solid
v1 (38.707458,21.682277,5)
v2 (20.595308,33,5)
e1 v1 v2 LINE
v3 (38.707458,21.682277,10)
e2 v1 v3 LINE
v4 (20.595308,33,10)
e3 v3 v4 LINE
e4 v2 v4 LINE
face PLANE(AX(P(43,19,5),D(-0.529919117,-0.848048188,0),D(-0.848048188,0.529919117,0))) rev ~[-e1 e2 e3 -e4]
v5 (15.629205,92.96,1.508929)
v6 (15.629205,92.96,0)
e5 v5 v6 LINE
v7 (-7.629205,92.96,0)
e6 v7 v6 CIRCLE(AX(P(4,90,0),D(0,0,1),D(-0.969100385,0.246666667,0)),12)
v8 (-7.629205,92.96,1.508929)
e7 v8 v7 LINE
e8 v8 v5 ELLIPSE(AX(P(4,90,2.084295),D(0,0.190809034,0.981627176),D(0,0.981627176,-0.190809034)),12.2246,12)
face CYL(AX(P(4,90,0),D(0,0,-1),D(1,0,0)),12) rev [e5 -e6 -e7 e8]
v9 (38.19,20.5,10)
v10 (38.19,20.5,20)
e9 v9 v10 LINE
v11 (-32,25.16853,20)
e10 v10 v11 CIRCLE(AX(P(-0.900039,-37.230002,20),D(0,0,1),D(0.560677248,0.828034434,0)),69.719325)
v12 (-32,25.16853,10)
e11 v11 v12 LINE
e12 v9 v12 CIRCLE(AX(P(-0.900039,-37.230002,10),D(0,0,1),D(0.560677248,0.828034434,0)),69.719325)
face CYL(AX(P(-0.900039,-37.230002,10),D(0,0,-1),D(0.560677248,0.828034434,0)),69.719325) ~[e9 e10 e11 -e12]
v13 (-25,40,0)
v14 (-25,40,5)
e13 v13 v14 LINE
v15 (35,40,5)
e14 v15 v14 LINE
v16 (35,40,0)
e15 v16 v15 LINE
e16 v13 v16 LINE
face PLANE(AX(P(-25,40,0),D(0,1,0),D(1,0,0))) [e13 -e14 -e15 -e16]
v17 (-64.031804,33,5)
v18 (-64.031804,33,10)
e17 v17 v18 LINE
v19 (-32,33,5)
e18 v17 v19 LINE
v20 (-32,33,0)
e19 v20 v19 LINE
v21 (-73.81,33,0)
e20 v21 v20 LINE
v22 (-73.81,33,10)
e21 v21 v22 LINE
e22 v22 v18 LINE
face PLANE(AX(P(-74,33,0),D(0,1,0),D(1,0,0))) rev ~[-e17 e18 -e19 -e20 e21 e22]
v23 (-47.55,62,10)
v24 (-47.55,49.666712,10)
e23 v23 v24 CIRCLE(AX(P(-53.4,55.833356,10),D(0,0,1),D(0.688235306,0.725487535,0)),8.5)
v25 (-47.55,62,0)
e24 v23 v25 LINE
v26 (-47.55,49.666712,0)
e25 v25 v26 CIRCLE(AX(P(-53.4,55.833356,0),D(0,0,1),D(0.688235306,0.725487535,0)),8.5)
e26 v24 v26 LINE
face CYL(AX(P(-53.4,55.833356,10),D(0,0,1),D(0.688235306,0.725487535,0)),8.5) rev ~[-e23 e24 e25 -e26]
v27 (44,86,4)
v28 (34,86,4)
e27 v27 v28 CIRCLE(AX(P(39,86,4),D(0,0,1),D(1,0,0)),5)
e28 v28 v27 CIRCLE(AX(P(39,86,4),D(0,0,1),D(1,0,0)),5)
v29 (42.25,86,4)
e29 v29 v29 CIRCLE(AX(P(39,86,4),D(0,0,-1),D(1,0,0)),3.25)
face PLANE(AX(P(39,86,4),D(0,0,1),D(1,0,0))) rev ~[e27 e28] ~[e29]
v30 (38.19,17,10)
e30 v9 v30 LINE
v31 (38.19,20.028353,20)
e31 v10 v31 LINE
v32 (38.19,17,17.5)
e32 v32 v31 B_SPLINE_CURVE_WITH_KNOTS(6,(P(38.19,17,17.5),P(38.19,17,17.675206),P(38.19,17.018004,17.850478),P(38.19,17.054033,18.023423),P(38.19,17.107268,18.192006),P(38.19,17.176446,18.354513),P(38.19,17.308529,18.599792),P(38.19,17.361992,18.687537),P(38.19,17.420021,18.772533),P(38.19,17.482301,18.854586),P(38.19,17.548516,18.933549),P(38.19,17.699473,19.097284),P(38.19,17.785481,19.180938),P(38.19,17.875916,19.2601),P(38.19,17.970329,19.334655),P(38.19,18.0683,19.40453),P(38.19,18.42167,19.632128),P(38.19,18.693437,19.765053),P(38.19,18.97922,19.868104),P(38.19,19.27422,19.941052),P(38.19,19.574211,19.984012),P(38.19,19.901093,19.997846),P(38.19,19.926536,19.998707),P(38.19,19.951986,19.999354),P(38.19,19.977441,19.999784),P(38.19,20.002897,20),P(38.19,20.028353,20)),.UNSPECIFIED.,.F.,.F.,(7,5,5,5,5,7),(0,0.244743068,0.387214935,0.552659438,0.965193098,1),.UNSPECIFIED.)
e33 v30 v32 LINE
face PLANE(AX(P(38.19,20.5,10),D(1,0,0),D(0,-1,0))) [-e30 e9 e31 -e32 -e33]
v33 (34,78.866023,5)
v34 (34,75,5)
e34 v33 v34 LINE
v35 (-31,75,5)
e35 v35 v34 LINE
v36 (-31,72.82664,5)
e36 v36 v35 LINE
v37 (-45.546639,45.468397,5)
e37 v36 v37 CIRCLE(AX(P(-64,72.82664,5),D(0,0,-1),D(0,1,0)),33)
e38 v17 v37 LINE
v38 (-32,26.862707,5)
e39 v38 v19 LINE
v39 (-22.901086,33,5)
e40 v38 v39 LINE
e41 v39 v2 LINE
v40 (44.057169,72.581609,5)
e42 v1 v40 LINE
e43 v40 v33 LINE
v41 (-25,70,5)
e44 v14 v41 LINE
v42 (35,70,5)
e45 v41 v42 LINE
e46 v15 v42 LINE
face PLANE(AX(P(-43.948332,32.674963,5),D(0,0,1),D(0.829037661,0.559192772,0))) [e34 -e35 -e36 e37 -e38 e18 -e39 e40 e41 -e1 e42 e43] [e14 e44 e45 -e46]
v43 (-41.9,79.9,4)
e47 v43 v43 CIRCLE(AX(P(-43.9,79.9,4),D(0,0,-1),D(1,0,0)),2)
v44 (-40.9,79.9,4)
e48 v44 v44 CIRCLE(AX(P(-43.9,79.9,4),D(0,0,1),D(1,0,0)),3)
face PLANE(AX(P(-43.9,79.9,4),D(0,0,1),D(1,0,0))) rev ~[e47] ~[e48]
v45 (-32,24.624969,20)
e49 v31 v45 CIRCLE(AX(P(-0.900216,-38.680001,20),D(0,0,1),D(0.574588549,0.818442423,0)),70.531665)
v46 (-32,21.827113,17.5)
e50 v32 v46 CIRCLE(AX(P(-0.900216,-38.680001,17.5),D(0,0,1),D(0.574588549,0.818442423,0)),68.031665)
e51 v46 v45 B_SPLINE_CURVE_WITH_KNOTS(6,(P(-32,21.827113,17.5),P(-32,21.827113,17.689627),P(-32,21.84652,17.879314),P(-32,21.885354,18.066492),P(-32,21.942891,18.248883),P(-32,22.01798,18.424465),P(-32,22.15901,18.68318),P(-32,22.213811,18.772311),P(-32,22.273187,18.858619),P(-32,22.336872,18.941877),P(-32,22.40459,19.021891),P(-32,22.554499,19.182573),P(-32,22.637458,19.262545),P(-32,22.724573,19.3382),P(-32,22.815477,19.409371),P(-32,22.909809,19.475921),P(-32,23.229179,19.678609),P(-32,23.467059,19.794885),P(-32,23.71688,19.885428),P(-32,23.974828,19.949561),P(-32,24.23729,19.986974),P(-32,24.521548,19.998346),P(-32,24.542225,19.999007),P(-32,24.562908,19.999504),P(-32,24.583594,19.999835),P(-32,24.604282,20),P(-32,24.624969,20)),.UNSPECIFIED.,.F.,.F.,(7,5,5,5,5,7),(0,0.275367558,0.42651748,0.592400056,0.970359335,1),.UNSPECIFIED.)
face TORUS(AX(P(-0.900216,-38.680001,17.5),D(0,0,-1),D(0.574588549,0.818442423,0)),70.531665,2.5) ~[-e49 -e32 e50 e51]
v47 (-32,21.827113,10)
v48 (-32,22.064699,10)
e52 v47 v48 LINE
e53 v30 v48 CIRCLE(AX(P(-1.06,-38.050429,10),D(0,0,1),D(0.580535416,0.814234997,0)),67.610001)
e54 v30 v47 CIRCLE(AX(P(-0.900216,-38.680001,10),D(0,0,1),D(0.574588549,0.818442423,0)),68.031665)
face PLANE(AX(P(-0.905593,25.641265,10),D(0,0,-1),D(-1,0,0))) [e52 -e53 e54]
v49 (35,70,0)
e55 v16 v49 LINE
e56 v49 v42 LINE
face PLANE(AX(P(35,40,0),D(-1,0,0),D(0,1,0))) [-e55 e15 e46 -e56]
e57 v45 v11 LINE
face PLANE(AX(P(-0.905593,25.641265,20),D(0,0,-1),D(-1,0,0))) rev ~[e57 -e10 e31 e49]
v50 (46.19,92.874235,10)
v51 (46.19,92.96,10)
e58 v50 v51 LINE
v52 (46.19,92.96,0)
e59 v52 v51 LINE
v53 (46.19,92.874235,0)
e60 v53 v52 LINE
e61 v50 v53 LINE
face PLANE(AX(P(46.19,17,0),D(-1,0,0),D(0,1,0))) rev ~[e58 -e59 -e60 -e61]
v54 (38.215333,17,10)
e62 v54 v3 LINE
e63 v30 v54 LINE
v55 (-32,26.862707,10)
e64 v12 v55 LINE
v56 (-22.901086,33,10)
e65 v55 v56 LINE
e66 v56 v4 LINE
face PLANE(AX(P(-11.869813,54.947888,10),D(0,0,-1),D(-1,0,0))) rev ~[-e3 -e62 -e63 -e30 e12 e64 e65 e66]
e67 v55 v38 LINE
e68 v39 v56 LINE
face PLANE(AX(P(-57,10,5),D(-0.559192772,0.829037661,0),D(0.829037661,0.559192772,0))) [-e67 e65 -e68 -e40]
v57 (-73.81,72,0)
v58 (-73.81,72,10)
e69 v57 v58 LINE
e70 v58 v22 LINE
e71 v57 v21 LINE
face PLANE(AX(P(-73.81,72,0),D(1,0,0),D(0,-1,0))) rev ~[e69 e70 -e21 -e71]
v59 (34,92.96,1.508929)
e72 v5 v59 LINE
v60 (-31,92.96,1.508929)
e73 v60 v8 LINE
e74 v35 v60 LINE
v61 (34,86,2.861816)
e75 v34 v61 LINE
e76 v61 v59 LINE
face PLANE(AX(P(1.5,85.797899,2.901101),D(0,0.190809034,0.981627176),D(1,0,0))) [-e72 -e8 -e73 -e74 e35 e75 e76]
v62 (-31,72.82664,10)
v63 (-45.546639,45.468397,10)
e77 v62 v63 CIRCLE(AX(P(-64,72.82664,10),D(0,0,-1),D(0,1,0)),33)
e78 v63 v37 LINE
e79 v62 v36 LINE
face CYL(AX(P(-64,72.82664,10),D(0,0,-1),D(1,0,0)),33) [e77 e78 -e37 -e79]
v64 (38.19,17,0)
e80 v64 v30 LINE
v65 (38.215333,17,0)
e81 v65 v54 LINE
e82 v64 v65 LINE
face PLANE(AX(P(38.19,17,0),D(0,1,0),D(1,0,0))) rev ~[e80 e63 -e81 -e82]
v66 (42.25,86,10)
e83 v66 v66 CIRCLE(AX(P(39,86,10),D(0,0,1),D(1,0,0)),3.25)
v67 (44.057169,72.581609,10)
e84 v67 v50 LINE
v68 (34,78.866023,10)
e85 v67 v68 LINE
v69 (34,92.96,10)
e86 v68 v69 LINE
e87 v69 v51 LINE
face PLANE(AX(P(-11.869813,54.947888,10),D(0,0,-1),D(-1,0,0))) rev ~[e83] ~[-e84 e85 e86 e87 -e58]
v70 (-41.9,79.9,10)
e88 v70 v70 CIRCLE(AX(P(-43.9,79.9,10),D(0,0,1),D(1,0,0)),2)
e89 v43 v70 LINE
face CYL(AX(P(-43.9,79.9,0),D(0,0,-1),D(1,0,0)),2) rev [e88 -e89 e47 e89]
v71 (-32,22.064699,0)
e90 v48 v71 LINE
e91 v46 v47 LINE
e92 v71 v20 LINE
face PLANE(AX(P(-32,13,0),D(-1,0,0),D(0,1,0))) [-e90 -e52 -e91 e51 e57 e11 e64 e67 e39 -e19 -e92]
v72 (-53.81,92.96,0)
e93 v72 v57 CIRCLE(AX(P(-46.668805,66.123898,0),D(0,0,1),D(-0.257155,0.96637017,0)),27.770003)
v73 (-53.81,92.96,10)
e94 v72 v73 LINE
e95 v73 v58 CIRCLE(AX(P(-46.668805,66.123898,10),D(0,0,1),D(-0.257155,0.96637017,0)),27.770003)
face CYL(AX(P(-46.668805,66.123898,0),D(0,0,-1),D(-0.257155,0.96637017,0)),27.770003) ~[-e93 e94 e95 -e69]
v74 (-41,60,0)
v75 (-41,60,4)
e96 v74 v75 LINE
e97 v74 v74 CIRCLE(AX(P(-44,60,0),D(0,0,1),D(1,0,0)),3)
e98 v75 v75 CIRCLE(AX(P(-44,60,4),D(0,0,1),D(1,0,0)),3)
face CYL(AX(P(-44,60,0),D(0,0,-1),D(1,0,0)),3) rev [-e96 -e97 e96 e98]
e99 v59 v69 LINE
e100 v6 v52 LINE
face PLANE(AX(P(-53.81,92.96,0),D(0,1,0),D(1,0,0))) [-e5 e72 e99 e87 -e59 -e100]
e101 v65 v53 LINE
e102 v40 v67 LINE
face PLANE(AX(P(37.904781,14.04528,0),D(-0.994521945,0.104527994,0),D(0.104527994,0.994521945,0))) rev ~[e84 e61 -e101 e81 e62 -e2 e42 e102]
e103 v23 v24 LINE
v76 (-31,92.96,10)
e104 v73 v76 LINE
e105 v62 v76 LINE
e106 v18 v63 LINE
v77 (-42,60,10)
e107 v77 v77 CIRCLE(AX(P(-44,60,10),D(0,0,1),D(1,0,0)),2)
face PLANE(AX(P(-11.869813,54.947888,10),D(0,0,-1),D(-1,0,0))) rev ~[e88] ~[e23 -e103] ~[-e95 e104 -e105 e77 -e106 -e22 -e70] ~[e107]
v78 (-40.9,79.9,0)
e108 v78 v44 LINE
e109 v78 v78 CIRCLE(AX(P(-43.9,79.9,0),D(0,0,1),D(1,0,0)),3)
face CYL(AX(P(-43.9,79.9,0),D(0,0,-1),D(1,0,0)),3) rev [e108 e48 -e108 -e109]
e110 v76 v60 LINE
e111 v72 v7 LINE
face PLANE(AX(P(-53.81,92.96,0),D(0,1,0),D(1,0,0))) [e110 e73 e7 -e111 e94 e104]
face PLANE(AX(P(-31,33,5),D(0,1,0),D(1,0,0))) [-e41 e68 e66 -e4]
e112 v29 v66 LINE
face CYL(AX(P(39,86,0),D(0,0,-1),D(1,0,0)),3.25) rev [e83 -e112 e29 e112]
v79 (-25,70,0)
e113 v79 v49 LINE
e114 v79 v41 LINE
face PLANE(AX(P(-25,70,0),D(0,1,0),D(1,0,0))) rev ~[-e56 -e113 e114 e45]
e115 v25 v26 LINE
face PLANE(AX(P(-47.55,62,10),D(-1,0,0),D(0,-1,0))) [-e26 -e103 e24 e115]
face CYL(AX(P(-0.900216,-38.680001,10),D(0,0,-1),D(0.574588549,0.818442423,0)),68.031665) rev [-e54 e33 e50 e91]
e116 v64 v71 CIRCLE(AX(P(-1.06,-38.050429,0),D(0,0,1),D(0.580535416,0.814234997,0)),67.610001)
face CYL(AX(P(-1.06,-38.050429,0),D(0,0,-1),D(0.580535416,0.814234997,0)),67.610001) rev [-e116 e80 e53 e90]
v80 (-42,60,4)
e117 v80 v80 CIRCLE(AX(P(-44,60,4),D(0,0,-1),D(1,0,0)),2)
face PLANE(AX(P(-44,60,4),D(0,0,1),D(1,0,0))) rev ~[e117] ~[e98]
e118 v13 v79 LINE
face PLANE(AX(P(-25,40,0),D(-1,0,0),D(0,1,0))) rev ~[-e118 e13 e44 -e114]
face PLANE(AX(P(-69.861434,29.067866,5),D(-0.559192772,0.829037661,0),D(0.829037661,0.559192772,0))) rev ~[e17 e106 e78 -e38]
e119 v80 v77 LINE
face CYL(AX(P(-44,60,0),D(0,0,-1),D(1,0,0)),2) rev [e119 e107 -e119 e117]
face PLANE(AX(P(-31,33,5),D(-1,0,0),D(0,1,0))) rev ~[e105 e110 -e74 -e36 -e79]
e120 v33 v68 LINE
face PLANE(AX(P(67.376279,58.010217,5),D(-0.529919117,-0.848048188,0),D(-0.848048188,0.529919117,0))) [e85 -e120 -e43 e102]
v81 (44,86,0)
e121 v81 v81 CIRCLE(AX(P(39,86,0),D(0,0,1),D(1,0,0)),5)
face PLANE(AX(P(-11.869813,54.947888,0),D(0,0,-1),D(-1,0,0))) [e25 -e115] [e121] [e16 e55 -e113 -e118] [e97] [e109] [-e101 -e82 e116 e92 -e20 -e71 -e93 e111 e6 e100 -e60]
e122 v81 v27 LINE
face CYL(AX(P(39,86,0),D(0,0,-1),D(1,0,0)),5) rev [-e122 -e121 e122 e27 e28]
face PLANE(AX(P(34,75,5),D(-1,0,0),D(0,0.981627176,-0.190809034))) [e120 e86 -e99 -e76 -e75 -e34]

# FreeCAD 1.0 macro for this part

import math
import FreeCAD as App
import Part
import Sketcher
Q = App.Units.Quantity


def edges_at(feature, points):
    """Names of the edges that pass closest to the given points."""
    edges = feature.Shape.Edges
    near = lambda p: min(range(len(edges)), key=lambda i: edges[i].distToShape(Part.Vertex(*p))[0])
    return sorted({f"Edge{near(p) + 1}" for p in points})

doc = App.newDocument("Part")
body = doc.addObject("PartDesign::Body", "Body")

# Sketch on XY plane
sketch1 = body.newObject("Sketcher::SketchObject", "Sketch")
sketch1.AttachmentSupport = (doc.getObject("XY_Plane"), [""])
sketch1.MapMode = "FlatFace"
sketch1.addGeometry(Part.LineSegment(App.Vector(46, 93, 0), App.Vector(-54, 93, 0)), False)
sketch1.addGeometry(Part.ArcOfCircle(Part.Circle(App.Vector(-47, 66, 0), App.Vector(0, 0, 1), 28), math.radians(105), math.radians(168)), False)
sketch1.addGeometry(Part.LineSegment(App.Vector(-74, 72, 0), App.Vector(-74, 17, 0)), False)
sketch1.addGeometry(Part.LineSegment(App.Vector(-74, 17, 0), App.Vector(-40, 17, 0)), False)
sketch1.addGeometry(Part.ArcOfCircle(Part.Circle(App.Vector(-1, -38, 0), App.Vector(0, 0, 1), 68), math.radians(55), math.radians(125)), False)
sketch1.addGeometry(Part.LineSegment(App.Vector(38, 17, 0), App.Vector(46, 17, 0)), False)
sketch1.addGeometry(Part.LineSegment(App.Vector(46, 17, 0), App.Vector(46, 93, 0)), False)
sketch1.addConstraint(Sketcher.Constraint("Coincident", 0, 2, 1, 1))
sketch1.addConstraint(Sketcher.Constraint("Coincident", 1, 2, 2, 1))
sketch1.addConstraint(Sketcher.Constraint("Coincident", 2, 2, 3, 1))
sketch1.addConstraint(Sketcher.Constraint("Coincident", 3, 2, 4, 2))
sketch1.addConstraint(Sketcher.Constraint("Coincident", 4, 1, 5, 1))
sketch1.addConstraint(Sketcher.Constraint("Coincident", 5, 2, 6, 1))
sketch1.addConstraint(Sketcher.Constraint("Coincident", 6, 2, 0, 1))
sketch1.addConstraint(Sketcher.Constraint("Horizontal", 0))
sketch1.addConstraint(Sketcher.Constraint("Vertical", 2))
sketch1.addConstraint(Sketcher.Constraint("Horizontal", 3))
sketch1.addConstraint(Sketcher.Constraint("Horizontal", 5))
sketch1.addConstraint(Sketcher.Constraint("Vertical", 6))
sketch1.addConstraint(Sketcher.Constraint("Horizontal", 3, 2, 4, 1))
sketch1.addConstraint(Sketcher.Constraint("DistanceX", 0, 2, 0, 1, 100.0))
sketch1.addConstraint(Sketcher.Constraint("DistanceX", 5, 1, 5, 2, 8.0))
sketch1.addConstraint(Sketcher.Constraint("DistanceY", 2, 2, 2, 1, 55.0))
sketch1.addConstraint(Sketcher.Constraint("Radius", 4, 67.610001))
sketch1.addConstraint(Sketcher.Constraint("DistanceX", 3, 1, 3, 2, 33.5))
sketch1.addConstraint(Sketcher.Constraint("DistanceY", -1, 1, 1, 2, 72.0))
sketch1.addConstraint(Sketcher.Constraint("DistanceX", 1, 2, 0, 2, 20.0))
sketch1.addConstraint(Sketcher.Constraint("DistanceY", 6, 1, 6, 2, 75.96))
sketch1.addConstraint(Sketcher.Constraint("DistanceX", 4, 3, -1, 1, 1.06))
sketch1.addConstraint(Sketcher.Constraint("Radius", 1, 27.770003))
pad1 = body.newObject("PartDesign::Pad", "Pad")
pad1.Profile = sketch1
pad1.Length = 10

# Sketch on XY plane
sketch2 = body.newObject("Sketcher::SketchObject", "Sketch001")
sketch2.AttachmentSupport = (doc.getObject("XY_Plane"), [""])
sketch2.MapMode = "FlatFace"
sketch2.AttachmentOffset = App.Placement(App.Vector(0, 0, 10), App.Rotation())
sketch2.addGeometry(Part.ArcOfCircle(Part.Circle(App.Vector(-0.9, -38.7, 0), App.Vector(0, 0, 1), 68), math.radians(55), math.radians(125)), False)
sketch2.addGeometry(Part.LineSegment(App.Vector(38.2, 17, 0), App.Vector(38.2, 20.5, 0)), False)
sketch2.addGeometry(Part.ArcOfCircle(Part.Circle(App.Vector(-0.9, -37.2, 0), App.Vector(0, 0, 1), 69.7), math.radians(56), math.radians(124)), False)
sketch2.addGeometry(Part.LineSegment(App.Vector(-40, 20.5, 0), App.Vector(-40, 17, 0)), False)
sketch2.addConstraint(Sketcher.Constraint("Coincident", 0, 1, 1, 1))
sketch2.addConstraint(Sketcher.Constraint("Coincident", 1, 2, 2, 1))
sketch2.addConstraint(Sketcher.Constraint("Coincident", 2, 2, 3, 1))
sketch2.addConstraint(Sketcher.Constraint("Coincident", 3, 2, 0, 2))
sketch2.addConstraint(Sketcher.Constraint("Vertical", 1))
sketch2.addConstraint(Sketcher.Constraint("Vertical", 3))
sketch2.addConstraint(Sketcher.Constraint("Equal", 1, 3))
sketch2.addConstraint(Sketcher.Constraint("DistanceY", 1, 1, 1, 2, 3.5))
sketch2.addConstraint(Sketcher.Constraint("DistanceY", -1, 1, 0, 1, 17.0))
sketch2.addConstraint(Sketcher.Constraint("DistanceX", 2, 2, -1, 1, 40.0))
sketch2.addConstraint(Sketcher.Constraint("DistanceY", 0, 3, -1, 1, 38.680001))
sketch2.addConstraint(Sketcher.Constraint("DistanceX", -1, 1, 0, 1, 38.19))
sketch2.addConstraint(Sketcher.Constraint("DistanceY", 0, 3, 2, 3, 1.449999))
sketch2.addConstraint(Sketcher.Constraint("Radius", 0, 68.031665))
pad2 = body.newObject("PartDesign::Pad", "Pad001")
pad2.Profile = sketch2
pad2.Length = 10
doc.recompute()

fillet = body.newObject("PartDesign::Fillet", "Fillet")
fillet.Base = (pad2, edges_at(pad2, [(-0.906, 29.352, 20)]))
fillet.Radius = 2.5

# Sketch on XY plane
sketch3 = body.newObject("Sketcher::SketchObject", "Sketch002")
sketch3.AttachmentSupport = (doc.getObject("XY_Plane"), [""])
sketch3.MapMode = "FlatFace"
sketch3.addGeometry(Part.LineSegment(App.Vector(-74, 33, 0), App.Vector(-74, 13, 0)), False)
sketch3.addGeometry(Part.LineSegment(App.Vector(-74, 13, 0), App.Vector(-32, 13, 0)), False)
sketch3.addGeometry(Part.LineSegment(App.Vector(-32, 13, 0), App.Vector(-32, 33, 0)), False)
sketch3.addGeometry(Part.LineSegment(App.Vector(-32, 33, 0), App.Vector(-74, 33, 0)), False)
sketch3.addConstraint(Sketcher.Constraint("Coincident", 0, 2, 1, 1))
sketch3.addConstraint(Sketcher.Constraint("Coincident", 1, 2, 2, 1))
sketch3.addConstraint(Sketcher.Constraint("Coincident", 2, 2, 3, 1))
sketch3.addConstraint(Sketcher.Constraint("Coincident", 3, 2, 0, 1))
sketch3.addConstraint(Sketcher.Constraint("Vertical", 0))
sketch3.addConstraint(Sketcher.Constraint("Horizontal", 1))
sketch3.addConstraint(Sketcher.Constraint("Vertical", 2))
sketch3.addConstraint(Sketcher.Constraint("Horizontal", 3))
sketch3.addConstraint(Sketcher.Constraint("DistanceX", 1, 1, 1, 2, 42.0))
sketch3.addConstraint(Sketcher.Constraint("DistanceY", 0, 2, 0, 1, 20.0))
sketch3.addConstraint(Sketcher.Constraint("DistanceX", 0, 2, -1, 1, 74.0))
sketch3.addConstraint(Sketcher.Constraint("DistanceY", -1, 1, 0, 2, 13.0))
pocket1 = body.newObject("PartDesign::Pocket", "Pocket")
pocket1.Profile = sketch3
pocket1.Length = 20
pocket1.Reversed = True

# Sketch on XY plane
sketch4 = body.newObject("Sketcher::SketchObject", "Sketch003")
sketch4.AttachmentSupport = (doc.getObject("XY_Plane"), [""])
sketch4.MapMode = "FlatFace"
sketch4.addGeometry(Part.Circle(App.Vector(4, 90, 0), App.Vector(0, 0, 1), 12), False)
sketch4.addConstraint(Sketcher.Constraint("Diameter", 0, 24.0))
sketch4.addConstraint(Sketcher.Constraint("DistanceX", -1, 1, 0, 3, 4.0))
sketch4.addConstraint(Sketcher.Constraint("DistanceY", -1, 1, 0, 3, 90.0))
pocket2 = body.newObject("PartDesign::Pocket", "Pocket001")
pocket2.Profile = sketch4
pocket2.Length = 10
pocket2.Reversed = True

# Sketch on XY plane
sketch5 = body.newObject("Sketcher::SketchObject", "Sketch004")
sketch5.AttachmentSupport = (doc.getObject("XY_Plane"), [""])
sketch5.MapMode = "FlatFace"
sketch5.addGeometry(Part.Circle(App.Vector(39, 86, 0), App.Vector(0, 0, 1), 5), False)
sketch5.addConstraint(Sketcher.Constraint("Diameter", 0, 10.0))
sketch5.addConstraint(Sketcher.Constraint("DistanceX", -1, 1, 0, 3, 39.0))
sketch5.addConstraint(Sketcher.Constraint("DistanceY", -1, 1, 0, 3, 86.0))
pocket3 = body.newObject("PartDesign::Pocket", "Pocket002")
pocket3.Profile = sketch5
pocket3.Length = 4
pocket3.Reversed = True

# Sketch on XY plane
sketch6 = body.newObject("Sketcher::SketchObject", "Sketch005")
sketch6.AttachmentSupport = (doc.getObject("XY_Plane"), [""])
sketch6.MapMode = "FlatFace"
sketch6.addGeometry(Part.Circle(App.Vector(39, 86, 0), App.Vector(0, 0, 1), 3.2), False)
sketch6.addConstraint(Sketcher.Constraint("Diameter", 0, 6.5))
sketch6.addConstraint(Sketcher.Constraint("DistanceX", -1, 1, 0, 3, 39.0))
sketch6.addConstraint(Sketcher.Constraint("DistanceY", -1, 1, 0, 3, 86.0))
pocket4 = body.newObject("PartDesign::Pocket", "Pocket003")
pocket4.Profile = sketch6
pocket4.Length = 10
pocket4.Reversed = True

# Sketch on XY plane
sketch7 = body.newObject("Sketcher::SketchObject", "Sketch006")
sketch7.AttachmentSupport = (doc.getObject("XY_Plane"), [""])
sketch7.MapMode = "FlatFace"
sketch7.addGeometry(Part.Circle(App.Vector(-43.9, 79.9, 0), App.Vector(0, 0, 1), 2), False)
sketch7.addConstraint(Sketcher.Constraint("Diameter", 0, 4.0))
sketch7.addConstraint(Sketcher.Constraint("DistanceX", 0, 3, -1, 1, 43.9))
sketch7.addConstraint(Sketcher.Constraint("DistanceY", -1, 1, 0, 3, 79.9))
pocket5 = body.newObject("PartDesign::Pocket", "Pocket004")
pocket5.Profile = sketch7
pocket5.Length = 10
pocket5.Reversed = True

# Sketch on XY plane
sketch8 = body.newObject("Sketcher::SketchObject", "Sketch007")
sketch8.AttachmentSupport = (doc.getObject("XY_Plane"), [""])
sketch8.MapMode = "FlatFace"
sketch8.addGeometry(Part.Circle(App.Vector(-44, 60, 0), App.Vector(0, 0, 1), 2), False)
sketch8.addConstraint(Sketcher.Constraint("Diameter", 0, 4.0))
sketch8.addConstraint(Sketcher.Constraint("DistanceX", 0, 3, -1, 1, 44.0))
sketch8.addConstraint(Sketcher.Constraint("DistanceY", -1, 1, 0, 3, 60.0))
pocket6 = body.newObject("PartDesign::Pocket", "Pocket005")
pocket6.Profile = sketch8
pocket6.Length = 10
pocket6.Reversed = True

# Sketch on XY plane
sketch9 = body.newObject("Sketcher::SketchObject", "Sketch008")
sketch9.AttachmentSupport = (doc.getObject("XY_Plane"), [""])
sketch9.MapMode = "FlatFace"
sketch9.addGeometry(Part.Circle(App.Vector(-43.9, 79.9, 0), App.Vector(0, 0, 1), 3), False)
sketch9.addConstraint(Sketcher.Constraint("Diameter", 0, 6.0))
sketch9.addConstraint(Sketcher.Constraint("DistanceX", 0, 3, -1, 1, 43.9))
sketch9.addConstraint(Sketcher.Constraint("DistanceY", -1, 1, 0, 3, 79.9))
pocket7 = body.newObject("PartDesign::Pocket", "Pocket006")
pocket7.Profile = sketch9
pocket7.Length = 4
pocket7.Reversed = True

# Sketch on XY plane
sketch10 = body.newObject("Sketcher::SketchObject", "Sketch009")
sketch10.AttachmentSupport = (doc.getObject("XY_Plane"), [""])
sketch10.MapMode = "FlatFace"
sketch10.addGeometry(Part.Circle(App.Vector(-44, 60, 0), App.Vector(0, 0, 1), 3), False)
sketch10.addConstraint(Sketcher.Constraint("Diameter", 0, 6.0))
sketch10.addConstraint(Sketcher.Constraint("DistanceX", 0, 3, -1, 1, 44.0))
sketch10.addConstraint(Sketcher.Constraint("DistanceY", -1, 1, 0, 3, 60.0))
pocket8 = body.newObject("PartDesign::Pocket", "Pocket007")
pocket8.Profile = sketch10
pocket8.Length = 4
pocket8.Reversed = True

# Sketch on XY plane
sketch11 = body.newObject("Sketcher::SketchObject", "Sketch010")
sketch11.AttachmentSupport = (doc.getObject("XY_Plane"), [""])
sketch11.MapMode = "FlatFace"
sketch11.addGeometry(Part.LineSegment(App.Vector(37.904781, 14.04528, 0), App.Vector(47.85, 13, 0)), False)
sketch11.addGeometry(Part.LineSegment(App.Vector(47.85, 13, 0), App.Vector(56.525824, 95.545321, 0)), False)
sketch11.addGeometry(Part.LineSegment(App.Vector(56.525824, 95.545321, 0), App.Vector(46.580604, 96.590601, 0)), False)
sketch11.addGeometry(Part.LineSegment(App.Vector(46.580604, 96.590601, 0), App.Vector(37.904781, 14.04528, 0)), False)
sketch11.addConstraint(Sketcher.Constraint("Coincident", 0, 2, 1, 1))
sketch11.addConstraint(Sketcher.Constraint("Coincident", 1, 2, 2, 1))
sketch11.addConstraint(Sketcher.Constraint("Coincident", 2, 2, 3, 1))
sketch11.addConstraint(Sketcher.Constraint("Coincident", 3, 2, 0, 1))
sketch11.addConstraint(Sketcher.Constraint("Perpendicular", 0, 1))
sketch11.addConstraint(Sketcher.Constraint("Perpendicular", 1, 2))
sketch11.addConstraint(Sketcher.Constraint("Perpendicular", 2, 3))
sketch11.addConstraint(Sketcher.Constraint("Distance", 0, 10.0))
sketch11.addConstraint(Sketcher.Constraint("Distance", 1, 83.0))
sketch11.addConstraint(Sketcher.Constraint("DistanceY", -1, 1, 0, 2, 13.0))
sketch11.addConstraint(Sketcher.Constraint("DistanceX", -1, 1, 0, 2, 47.85))
sketch11.addConstraint(Sketcher.Constraint("DistanceY", -1, 1, 2, 2, 96.590601))
pocket9 = body.newObject("PartDesign::Pocket", "Pocket008")
pocket9.Profile = sketch11
pocket9.Length = 10
pocket9.Reversed = True

# Sketch on XY plane
sketch12 = body.newObject("Sketcher::SketchObject", "Sketch011")
sketch12.AttachmentSupport = (doc.getObject("XY_Plane"), [""])
sketch12.MapMode = "FlatFace"
sketch12.addGeometry(Part.LineSegment(App.Vector(-25, 70, 0), App.Vector(-25, 40, 0)), False)
sketch12.addGeometry(Part.LineSegment(App.Vector(-25, 40, 0), App.Vector(35, 40, 0)), False)
sketch12.addGeometry(Part.LineSegment(App.Vector(35, 40, 0), App.Vector(35, 70, 0)), False)
sketch12.addGeometry(Part.LineSegment(App.Vector(35, 70, 0), App.Vector(-25, 70, 0)), False)
sketch12.addConstraint(Sketcher.Constraint("Coincident", 0, 2, 1, 1))
sketch12.addConstraint(Sketcher.Constraint("Coincident", 1, 2, 2, 1))
sketch12.addConstraint(Sketcher.Constraint("Coincident", 2, 2, 3, 1))
sketch12.addConstraint(Sketcher.Constraint("Coincident", 3, 2, 0, 1))
sketch12.addConstraint(Sketcher.Constraint("Vertical", 0))
sketch12.addConstraint(Sketcher.Constraint("Horizontal", 1))
sketch12.addConstraint(Sketcher.Constraint("Vertical", 2))
sketch12.addConstraint(Sketcher.Constraint("Horizontal", 3))
sketch12.addConstraint(Sketcher.Constraint("DistanceX", 1, 1, 1, 2, 60.0))
sketch12.addConstraint(Sketcher.Constraint("DistanceY", 0, 2, 0, 1, 30.0))
sketch12.addConstraint(Sketcher.Constraint("DistanceX", 0, 2, -1, 1, 25.0))
sketch12.addConstraint(Sketcher.Constraint("DistanceY", -1, 1, 0, 2, 40.0))
pocket10 = body.newObject("PartDesign::Pocket", "Pocket009")
pocket10.Profile = sketch12
pocket10.Length = 10
pocket10.Reversed = True

# Sketch on XY plane
sketch13 = body.newObject("Sketcher::SketchObject", "Sketch012")
sketch13.AttachmentSupport = (doc.getObject("XY_Plane"), [""])
sketch13.MapMode = "FlatFace"
sketch13.AttachmentOffset = App.Placement(App.Vector(0, 0, 5), App.Rotation())
sketch13.addGeometry(Part.LineSegment(App.Vector(-31, 95, 0), App.Vector(-31, 33, 0)), False)
sketch13.addGeometry(Part.LineSegment(App.Vector(-31, 33, 0), App.Vector(34, 33, 0)), False)
sketch13.addGeometry(Part.LineSegment(App.Vector(34, 33, 0), App.Vector(34, 95, 0)), False)
sketch13.addGeometry(Part.LineSegment(App.Vector(34, 95, 0), App.Vector(-31, 95, 0)), False)
sketch13.addConstraint(Sketcher.Constraint("Coincident", 0, 2, 1, 1))
sketch13.addConstraint(Sketcher.Constraint("Coincident", 1, 2, 2, 1))
sketch13.addConstraint(Sketcher.Constraint("Coincident", 2, 2, 3, 1))
sketch13.addConstraint(Sketcher.Constraint("Coincident", 3, 2, 0, 1))
sketch13.addConstraint(Sketcher.Constraint("Vertical", 0))
sketch13.addConstraint(Sketcher.Constraint("Horizontal", 1))
sketch13.addConstraint(Sketcher.Constraint("Vertical", 2))
sketch13.addConstraint(Sketcher.Constraint("Horizontal", 3))
sketch13.addConstraint(Sketcher.Constraint("DistanceX", 1, 1, 1, 2, 65.0))
sketch13.addConstraint(Sketcher.Constraint("DistanceY", 0, 2, 0, 1, 62.0))
sketch13.addConstraint(Sketcher.Constraint("DistanceX", 0, 2, -1, 1, 31.0))
sketch13.addConstraint(Sketcher.Constraint("DistanceY", -1, 1, 0, 2, 33.0))
pocket11 = body.newObject("PartDesign::Pocket", "Pocket010")
pocket11.Profile = sketch13
pocket11.Length = 10
pocket11.Reversed = True

# Sketch on XY plane
sketch14 = body.newObject("Sketcher::SketchObject", "Sketch013")
sketch14.AttachmentSupport = (doc.getObject("XY_Plane"), [""])
sketch14.MapMode = "FlatFace"
sketch14.AttachmentOffset = App.Placement(App.Vector(0, 0, 5), App.Rotation())
sketch14.addGeometry(Part.LineSegment(App.Vector(-70, 29, 0), App.Vector(-57, 10, 0)), False)
sketch14.addGeometry(Part.LineSegment(App.Vector(-57, 10, 0), App.Vector(-18, 36, 0)), False)
sketch14.addGeometry(Part.LineSegment(App.Vector(-18, 36, 0), App.Vector(-31, 55, 0)), False)
sketch14.addGeometry(Part.LineSegment(App.Vector(-31, 55, 0), App.Vector(-70, 29, 0)), False)
sketch14.addConstraint(Sketcher.Constraint("Coincident", 0, 2, 1, 1))
sketch14.addConstraint(Sketcher.Constraint("Coincident", 1, 2, 2, 1))
sketch14.addConstraint(Sketcher.Constraint("Coincident", 2, 2, 3, 1))
sketch14.addConstraint(Sketcher.Constraint("Coincident", 3, 2, 0, 1))
sketch14.addConstraint(Sketcher.Constraint("Perpendicular", 0, 1))
sketch14.addConstraint(Sketcher.Constraint("Perpendicular", 1, 2))
sketch14.addConstraint(Sketcher.Constraint("Perpendicular", 2, 3))
sketch14.addConstraint(Sketcher.Constraint("Angle", 0, Q("-56.000009 deg")))
sketch14.addConstraint(Sketcher.Constraint("Distance", 0, 23.0))
sketch14.addConstraint(Sketcher.Constraint("Distance", 1, 47.0))
sketch14.addConstraint(Sketcher.Constraint("DistanceX", 0, 2, -1, 1, 57.0))
sketch14.addConstraint(Sketcher.Constraint("DistanceY", -1, 1, 0, 2, 10.0))
pocket12 = body.newObject("PartDesign::Pocket", "Pocket011")
pocket12.Profile = sketch14
pocket12.Length = 5
pocket12.Reversed = True

# Sketch on XY plane
sketch15 = body.newObject("Sketcher::SketchObject", "Sketch014")
sketch15.AttachmentSupport = (doc.getObject("XY_Plane"), [""])
sketch15.MapMode = "FlatFace"
sketch15.AttachmentOffset = App.Placement(App.Vector(0, 0, 5), App.Rotation())
sketch15.addGeometry(Part.LineSegment(App.Vector(9, 40, 0), App.Vector(43, 19, 0)), False)
sketch15.addGeometry(Part.LineSegment(App.Vector(43, 19, 0), App.Vector(67, 58, 0)), False)
sketch15.addGeometry(Part.LineSegment(App.Vector(67, 58, 0), App.Vector(33, 79, 0)), False)
sketch15.addGeometry(Part.LineSegment(App.Vector(33, 79, 0), App.Vector(9, 40, 0)), False)
sketch15.addConstraint(Sketcher.Constraint("Coincident", 0, 2, 1, 1))
sketch15.addConstraint(Sketcher.Constraint("Coincident", 1, 2, 2, 1))
sketch15.addConstraint(Sketcher.Constraint("Coincident", 2, 2, 3, 1))
sketch15.addConstraint(Sketcher.Constraint("Coincident", 3, 2, 0, 1))
sketch15.addConstraint(Sketcher.Constraint("Perpendicular", 0, 1))
sketch15.addConstraint(Sketcher.Constraint("Perpendicular", 1, 2))
sketch15.addConstraint(Sketcher.Constraint("Perpendicular", 2, 3))
sketch15.addConstraint(Sketcher.Constraint("Angle", 0, Q("-31.99999 deg")))
sketch15.addConstraint(Sketcher.Constraint("Distance", 0, 40.0))
sketch15.addConstraint(Sketcher.Constraint("Distance", 1, 46.0))
sketch15.addConstraint(Sketcher.Constraint("DistanceX", -1, 1, 0, 2, 43.0))
sketch15.addConstraint(Sketcher.Constraint("DistanceY", -1, 1, 0, 2, 19.0))
pocket13 = body.newObject("PartDesign::Pocket", "Pocket012")
pocket13.Profile = sketch15
pocket13.Length = 5
pocket13.Reversed = True

# Sketch on an angled plane
sketch16 = body.newObject("Sketcher::SketchObject", "Sketch015")
sketch16.Placement = App.Placement(App.Vector(-31, 75, 5), App.Rotation(App.Vector(1, 0, 0), App.Vector(0, 0.981627176, -0.190809034), App.Vector(0, 0.190809034, 0.981627176), "ZXY"))
sketch16.addGeometry(Part.LineSegment(App.Vector(0, 22, 0), App.Vector(0, 0, 0)), False)
sketch16.addGeometry(Part.LineSegment(App.Vector(0, 0, 0), App.Vector(65, 0, 0)), False)
sketch16.addGeometry(Part.LineSegment(App.Vector(65, 0, 0), App.Vector(65, 22, 0)), False)
sketch16.addGeometry(Part.LineSegment(App.Vector(65, 22, 0), App.Vector(0, 22, 0)), False)
sketch16.addConstraint(Sketcher.Constraint("Coincident", 0, 2, 1, 1))
sketch16.addConstraint(Sketcher.Constraint("Coincident", 1, 2, 2, 1))
sketch16.addConstraint(Sketcher.Constraint("Coincident", 2, 2, 3, 1))
sketch16.addConstraint(Sketcher.Constraint("Coincident", 3, 2, 0, 1))
sketch16.addConstraint(Sketcher.Constraint("Vertical", 0))
sketch16.addConstraint(Sketcher.Constraint("Horizontal", 1))
sketch16.addConstraint(Sketcher.Constraint("Vertical", 2))
sketch16.addConstraint(Sketcher.Constraint("Horizontal", 3))
sketch16.addConstraint(Sketcher.Constraint("Coincident", 0, 2, -1, 1))
sketch16.addConstraint(Sketcher.Constraint("DistanceX", 1, 1, 1, 2, 65.0))
sketch16.addConstraint(Sketcher.Constraint("DistanceY", 0, 2, 0, 1, 22.0))
pocket14 = body.newObject("PartDesign::Pocket", "Pocket013")
pocket14.Profile = sketch16
pocket14.Length = 10
pocket14.Reversed = True
doc.recompute()

fillet2 = body.newObject("PartDesign::Fillet", "Fillet001")
fillet2.Base = (pocket14, edges_at(pocket14, [(-31, 55.28, 7.5)]))
fillet2.Radius = 33

# Sketch on XY plane
sketch17 = body.newObject("Sketcher::SketchObject", "Sketch016")
sketch17.AttachmentSupport = (doc.getObject("XY_Plane"), [""])
sketch17.MapMode = "FlatFace"
sketch17.AttachmentOffset = App.Placement(App.Vector(0, 0, 10), App.Rotation())
sketch17.addGeometry(Part.ArcOfCircle(Part.Circle(App.Vector(-53, 56, 0), App.Vector(0, 0, 1), 8), math.radians(47), math.radians(313)), False)
sketch17.addGeometry(Part.LineSegment(App.Vector(-48, 50, 0), App.Vector(-48, 62, 0)), False)
sketch17.addConstraint(Sketcher.Constraint("Coincident", 0, 1, 1, 2))
sketch17.addConstraint(Sketcher.Constraint("Coincident", 1, 1, 0, 2))
sketch17.addConstraint(Sketcher.Constraint("Vertical", 1))
sketch17.addConstraint(Sketcher.Constraint("Radius", 0, 8.5))
sketch17.addConstraint(Sketcher.Constraint("DistanceY", -1, 1, 0, 1, 62.0))
sketch17.addConstraint(Sketcher.Constraint("DistanceX", 0, 3, -1, 1, 53.4))
sketch17.addConstraint(Sketcher.Constraint("DistanceX", 0, 1, -1, 1, 47.55))
pocket15 = body.newObject("PartDesign::Pocket", "Pocket014")
pocket15.Profile = sketch17
pocket15.Length = 10

doc.recompute()
